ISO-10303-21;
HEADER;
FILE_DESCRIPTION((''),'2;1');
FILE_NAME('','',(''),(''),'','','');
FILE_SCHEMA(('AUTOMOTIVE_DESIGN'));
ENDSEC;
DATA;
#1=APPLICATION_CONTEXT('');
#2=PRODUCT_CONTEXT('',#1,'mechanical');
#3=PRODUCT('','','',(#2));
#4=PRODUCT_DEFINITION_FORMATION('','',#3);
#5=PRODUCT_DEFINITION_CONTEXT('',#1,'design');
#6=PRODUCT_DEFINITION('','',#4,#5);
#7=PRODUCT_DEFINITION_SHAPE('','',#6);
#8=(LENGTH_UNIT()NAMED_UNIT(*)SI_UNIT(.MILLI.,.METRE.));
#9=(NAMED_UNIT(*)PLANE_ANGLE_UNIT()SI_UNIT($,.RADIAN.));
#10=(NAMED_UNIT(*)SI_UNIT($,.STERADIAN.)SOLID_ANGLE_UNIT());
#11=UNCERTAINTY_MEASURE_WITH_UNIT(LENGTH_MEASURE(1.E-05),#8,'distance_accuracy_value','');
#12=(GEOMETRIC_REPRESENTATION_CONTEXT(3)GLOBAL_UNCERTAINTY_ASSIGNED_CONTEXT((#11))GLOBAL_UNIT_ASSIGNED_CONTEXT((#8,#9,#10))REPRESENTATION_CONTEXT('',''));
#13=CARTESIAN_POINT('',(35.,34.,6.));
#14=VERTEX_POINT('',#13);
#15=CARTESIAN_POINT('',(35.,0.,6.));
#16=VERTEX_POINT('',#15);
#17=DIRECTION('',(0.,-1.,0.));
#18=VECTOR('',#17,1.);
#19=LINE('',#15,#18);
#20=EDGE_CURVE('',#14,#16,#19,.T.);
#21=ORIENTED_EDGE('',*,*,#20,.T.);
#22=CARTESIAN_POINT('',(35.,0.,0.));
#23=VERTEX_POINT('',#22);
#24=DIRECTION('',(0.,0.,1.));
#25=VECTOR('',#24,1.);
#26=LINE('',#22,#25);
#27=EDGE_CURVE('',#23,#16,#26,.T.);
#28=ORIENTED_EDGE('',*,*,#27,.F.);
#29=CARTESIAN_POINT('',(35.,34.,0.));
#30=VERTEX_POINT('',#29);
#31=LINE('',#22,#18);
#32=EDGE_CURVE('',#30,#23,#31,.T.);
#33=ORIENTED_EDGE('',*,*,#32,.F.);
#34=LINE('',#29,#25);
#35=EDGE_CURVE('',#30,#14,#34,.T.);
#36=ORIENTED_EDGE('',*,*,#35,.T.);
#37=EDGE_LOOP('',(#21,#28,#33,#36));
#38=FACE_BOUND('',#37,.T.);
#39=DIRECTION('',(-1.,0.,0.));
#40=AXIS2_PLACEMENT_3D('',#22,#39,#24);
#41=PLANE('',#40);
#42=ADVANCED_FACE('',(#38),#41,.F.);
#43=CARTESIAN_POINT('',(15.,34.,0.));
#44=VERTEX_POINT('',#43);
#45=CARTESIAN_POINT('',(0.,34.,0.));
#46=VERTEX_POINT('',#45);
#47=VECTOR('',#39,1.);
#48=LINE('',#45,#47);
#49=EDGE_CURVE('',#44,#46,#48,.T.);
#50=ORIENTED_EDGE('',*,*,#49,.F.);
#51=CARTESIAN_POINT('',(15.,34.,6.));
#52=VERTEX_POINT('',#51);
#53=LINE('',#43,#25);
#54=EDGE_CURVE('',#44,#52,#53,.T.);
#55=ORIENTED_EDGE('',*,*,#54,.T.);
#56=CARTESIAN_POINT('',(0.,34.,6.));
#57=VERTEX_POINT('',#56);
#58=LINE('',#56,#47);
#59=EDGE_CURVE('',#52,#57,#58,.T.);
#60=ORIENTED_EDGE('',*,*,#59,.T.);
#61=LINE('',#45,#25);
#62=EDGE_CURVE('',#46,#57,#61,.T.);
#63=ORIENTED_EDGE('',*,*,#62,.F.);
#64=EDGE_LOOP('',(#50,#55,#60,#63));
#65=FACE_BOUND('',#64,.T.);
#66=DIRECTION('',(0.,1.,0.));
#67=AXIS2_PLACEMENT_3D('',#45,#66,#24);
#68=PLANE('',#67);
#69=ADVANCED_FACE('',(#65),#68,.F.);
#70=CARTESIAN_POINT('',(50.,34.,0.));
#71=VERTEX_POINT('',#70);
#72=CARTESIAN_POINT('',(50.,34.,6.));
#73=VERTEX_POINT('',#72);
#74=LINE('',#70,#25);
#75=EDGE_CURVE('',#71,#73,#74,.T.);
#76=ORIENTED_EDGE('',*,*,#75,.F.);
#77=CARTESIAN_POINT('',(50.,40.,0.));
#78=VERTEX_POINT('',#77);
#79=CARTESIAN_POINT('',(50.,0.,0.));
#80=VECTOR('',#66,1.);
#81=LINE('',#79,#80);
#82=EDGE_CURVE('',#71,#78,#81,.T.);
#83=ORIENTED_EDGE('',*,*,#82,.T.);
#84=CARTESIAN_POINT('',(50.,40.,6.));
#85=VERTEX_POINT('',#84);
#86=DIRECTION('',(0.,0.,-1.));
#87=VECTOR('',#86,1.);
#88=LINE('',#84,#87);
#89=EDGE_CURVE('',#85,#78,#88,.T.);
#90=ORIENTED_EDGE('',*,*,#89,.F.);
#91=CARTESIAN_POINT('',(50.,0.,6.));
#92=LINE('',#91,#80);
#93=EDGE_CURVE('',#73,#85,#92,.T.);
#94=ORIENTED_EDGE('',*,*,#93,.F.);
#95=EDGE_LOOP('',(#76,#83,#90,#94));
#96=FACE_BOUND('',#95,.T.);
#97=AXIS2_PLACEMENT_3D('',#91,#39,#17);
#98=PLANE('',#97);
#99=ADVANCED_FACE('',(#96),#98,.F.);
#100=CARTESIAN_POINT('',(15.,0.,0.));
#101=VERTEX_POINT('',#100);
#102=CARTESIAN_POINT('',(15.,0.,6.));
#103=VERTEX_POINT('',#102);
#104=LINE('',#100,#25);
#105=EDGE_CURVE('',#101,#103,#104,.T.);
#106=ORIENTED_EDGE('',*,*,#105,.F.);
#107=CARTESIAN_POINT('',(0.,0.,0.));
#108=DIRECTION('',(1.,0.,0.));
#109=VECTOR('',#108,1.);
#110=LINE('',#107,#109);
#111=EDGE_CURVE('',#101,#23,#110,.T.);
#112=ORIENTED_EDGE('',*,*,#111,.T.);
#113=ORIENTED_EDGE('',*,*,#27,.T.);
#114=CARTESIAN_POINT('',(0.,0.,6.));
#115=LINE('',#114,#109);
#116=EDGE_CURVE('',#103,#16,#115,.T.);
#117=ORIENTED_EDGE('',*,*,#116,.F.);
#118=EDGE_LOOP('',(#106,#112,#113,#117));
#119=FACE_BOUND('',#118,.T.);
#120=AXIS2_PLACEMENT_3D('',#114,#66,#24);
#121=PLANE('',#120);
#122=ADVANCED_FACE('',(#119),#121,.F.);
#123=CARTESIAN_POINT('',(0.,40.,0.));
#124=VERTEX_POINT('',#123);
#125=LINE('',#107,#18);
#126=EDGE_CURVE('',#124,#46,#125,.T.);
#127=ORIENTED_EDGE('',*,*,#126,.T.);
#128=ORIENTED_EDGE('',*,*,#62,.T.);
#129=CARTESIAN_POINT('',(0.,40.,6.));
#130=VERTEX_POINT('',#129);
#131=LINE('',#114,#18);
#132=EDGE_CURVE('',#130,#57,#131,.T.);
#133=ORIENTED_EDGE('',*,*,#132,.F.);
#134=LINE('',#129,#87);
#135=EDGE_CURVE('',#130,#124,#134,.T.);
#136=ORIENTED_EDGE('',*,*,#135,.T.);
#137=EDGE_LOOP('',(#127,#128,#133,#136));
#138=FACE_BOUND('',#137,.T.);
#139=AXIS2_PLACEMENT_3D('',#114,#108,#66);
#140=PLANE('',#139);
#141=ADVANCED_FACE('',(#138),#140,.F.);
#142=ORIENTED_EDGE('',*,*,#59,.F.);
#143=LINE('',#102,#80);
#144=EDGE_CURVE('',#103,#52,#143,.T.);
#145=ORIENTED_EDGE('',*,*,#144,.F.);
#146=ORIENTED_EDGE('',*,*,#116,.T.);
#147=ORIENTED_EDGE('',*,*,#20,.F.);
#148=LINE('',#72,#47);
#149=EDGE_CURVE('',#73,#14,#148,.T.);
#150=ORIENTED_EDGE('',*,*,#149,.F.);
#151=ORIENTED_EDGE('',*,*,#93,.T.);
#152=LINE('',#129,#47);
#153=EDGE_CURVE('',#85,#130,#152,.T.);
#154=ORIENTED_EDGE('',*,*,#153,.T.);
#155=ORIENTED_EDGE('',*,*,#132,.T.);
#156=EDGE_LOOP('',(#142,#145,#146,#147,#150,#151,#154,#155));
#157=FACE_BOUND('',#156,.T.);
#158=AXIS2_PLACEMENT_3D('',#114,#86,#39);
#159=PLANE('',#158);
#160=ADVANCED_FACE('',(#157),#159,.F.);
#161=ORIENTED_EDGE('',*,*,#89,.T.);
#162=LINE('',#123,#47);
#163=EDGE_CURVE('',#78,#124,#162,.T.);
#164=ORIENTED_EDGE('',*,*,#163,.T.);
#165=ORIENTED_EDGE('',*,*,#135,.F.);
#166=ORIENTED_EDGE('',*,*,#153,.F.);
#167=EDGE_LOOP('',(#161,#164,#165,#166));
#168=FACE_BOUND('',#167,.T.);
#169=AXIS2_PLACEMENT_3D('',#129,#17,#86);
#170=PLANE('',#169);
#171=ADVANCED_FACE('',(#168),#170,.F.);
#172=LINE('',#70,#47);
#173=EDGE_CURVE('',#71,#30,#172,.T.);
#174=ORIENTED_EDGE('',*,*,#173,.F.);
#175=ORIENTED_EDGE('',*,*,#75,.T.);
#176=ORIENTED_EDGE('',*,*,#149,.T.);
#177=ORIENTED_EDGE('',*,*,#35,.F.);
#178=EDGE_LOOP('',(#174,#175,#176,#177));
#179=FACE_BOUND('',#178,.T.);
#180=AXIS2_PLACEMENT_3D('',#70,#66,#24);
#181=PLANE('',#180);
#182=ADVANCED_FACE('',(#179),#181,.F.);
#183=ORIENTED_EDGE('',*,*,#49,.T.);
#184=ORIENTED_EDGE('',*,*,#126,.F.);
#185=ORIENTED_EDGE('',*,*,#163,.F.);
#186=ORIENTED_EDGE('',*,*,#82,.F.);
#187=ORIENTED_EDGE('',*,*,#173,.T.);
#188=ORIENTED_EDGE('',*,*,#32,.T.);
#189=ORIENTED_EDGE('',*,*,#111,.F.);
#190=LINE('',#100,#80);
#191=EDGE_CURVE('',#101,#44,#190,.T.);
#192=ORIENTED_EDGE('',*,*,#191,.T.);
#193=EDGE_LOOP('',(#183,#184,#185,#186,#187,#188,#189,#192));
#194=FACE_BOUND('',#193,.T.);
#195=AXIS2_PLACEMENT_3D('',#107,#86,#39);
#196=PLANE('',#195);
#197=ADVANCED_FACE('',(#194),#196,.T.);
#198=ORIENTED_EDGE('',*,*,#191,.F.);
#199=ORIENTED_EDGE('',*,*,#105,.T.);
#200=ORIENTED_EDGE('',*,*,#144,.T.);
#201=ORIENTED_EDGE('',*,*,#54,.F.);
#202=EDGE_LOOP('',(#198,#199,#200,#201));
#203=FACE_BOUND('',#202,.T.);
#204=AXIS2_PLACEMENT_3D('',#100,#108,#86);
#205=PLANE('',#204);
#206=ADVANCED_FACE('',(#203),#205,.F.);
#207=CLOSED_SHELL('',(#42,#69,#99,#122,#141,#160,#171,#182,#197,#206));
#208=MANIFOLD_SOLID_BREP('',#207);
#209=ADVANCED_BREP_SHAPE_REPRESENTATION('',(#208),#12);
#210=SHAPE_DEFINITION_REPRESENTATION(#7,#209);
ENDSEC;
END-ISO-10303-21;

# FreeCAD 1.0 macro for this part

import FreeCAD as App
import Part
import Sketcher
Q = App.Units.Quantity

doc = App.newDocument("Part")
params = doc.addObject("Spreadsheet::Sheet", "Params")
for row, (alias, value) in enumerate([
    ("sketch1_width", "50 mm"),
    ("sketch1_height", "40 mm"),
    ("pad1_length", "6 mm"),
    ("sketch2_width", "15 mm"),
    ("sketch2_height", "34 mm"),
    ("pocket1_length", "6 mm"),
], start=1):
    params.set(f"A{row}", alias)
    params.set(f"B{row}", "=" + value)
    params.setAlias(f"B{row}", alias)

body = doc.addObject("PartDesign::Body", "Body")

# Sketch on XY plane
sketch1 = body.newObject("Sketcher::SketchObject", "Sketch")
sketch1.AttachmentSupport = (doc.getObject("XY_Plane"), [""])
sketch1.MapMode = "FlatFace"
sketch1.addGeometry(Part.LineSegment(App.Vector(0, 40, 0), App.Vector(0, 0, 0)), False)
sketch1.addGeometry(Part.LineSegment(App.Vector(0, 0, 0), App.Vector(50, 0, 0)), False)
sketch1.addGeometry(Part.LineSegment(App.Vector(50, 0, 0), App.Vector(50, 40, 0)), False)
sketch1.addGeometry(Part.LineSegment(App.Vector(50, 40, 0), App.Vector(0, 40, 0)), False)
sketch1.addConstraint(Sketcher.Constraint("Coincident", 0, 2, 1, 1))
sketch1.addConstraint(Sketcher.Constraint("Coincident", 1, 2, 2, 1))
sketch1.addConstraint(Sketcher.Constraint("Coincident", 2, 2, 3, 1))
sketch1.addConstraint(Sketcher.Constraint("Coincident", 3, 2, 0, 1))
sketch1.addConstraint(Sketcher.Constraint("Vertical", 0))
sketch1.addConstraint(Sketcher.Constraint("Horizontal", 1))
sketch1.addConstraint(Sketcher.Constraint("Vertical", 2))
sketch1.addConstraint(Sketcher.Constraint("Horizontal", 3))
sketch1.addConstraint(Sketcher.Constraint("Coincident", 0, 2, -1, 1))
sketch1.addConstraint(Sketcher.Constraint("DistanceX", 1, 1, 1, 2, Q("50 mm")))
sketch1.addConstraint(Sketcher.Constraint("DistanceY", 0, 2, 0, 1, Q("40 mm")))
sketch1.setExpression("Constraints[9]", "Params.sketch1_width")
sketch1.setExpression("Constraints[10]", "Params.sketch1_height")
pad1 = body.newObject("PartDesign::Pad", "Pad")
pad1.Profile = sketch1
pad1.setExpression("Length", "Params.pad1_length")

# Sketch on XY plane
sketch2 = body.newObject("Sketcher::SketchObject", "Sketch001")
sketch2.AttachmentSupport = (doc.getObject("XY_Plane"), [""])
sketch2.MapMode = "FlatFace"
sketch2.AttachmentOffset = App.Placement(App.Vector(0, 0, 6), App.Rotation())
sketch2.addGeometry(Part.LineSegment(App.Vector(0, 34, 0), App.Vector(0, 0, 0)), False)
sketch2.addGeometry(Part.LineSegment(App.Vector(0, 0, 0), App.Vector(15, 0, 0)), False)
sketch2.addGeometry(Part.LineSegment(App.Vector(15, 0, 0), App.Vector(15, 34, 0)), False)
sketch2.addGeometry(Part.LineSegment(App.Vector(15, 34, 0), App.Vector(0, 34, 0)), False)
sketch2.addGeometry(Part.LineSegment(App.Vector(35, 34, 0), App.Vector(35, 0, 0)), False)
sketch2.addGeometry(Part.LineSegment(App.Vector(35, 0, 0), App.Vector(50, 0, 0)), False)
sketch2.addGeometry(Part.LineSegment(App.Vector(50, 0, 0), App.Vector(50, 34, 0)), False)
sketch2.addGeometry(Part.LineSegment(App.Vector(50, 34, 0), App.Vector(35, 34, 0)), False)
sketch2.addConstraint(Sketcher.Constraint("Coincident", 0, 2, 1, 1))
sketch2.addConstraint(Sketcher.Constraint("Coincident", 1, 2, 2, 1))
sketch2.addConstraint(Sketcher.Constraint("Coincident", 2, 2, 3, 1))
sketch2.addConstraint(Sketcher.Constraint("Coincident", 3, 2, 0, 1))
sketch2.addConstraint(Sketcher.Constraint("Coincident", 4, 2, 5, 1))
sketch2.addConstraint(Sketcher.Constraint("Coincident", 5, 2, 6, 1))
sketch2.addConstraint(Sketcher.Constraint("Coincident", 6, 2, 7, 1))
sketch2.addConstraint(Sketcher.Constraint("Coincident", 7, 2, 4, 1))
sketch2.addConstraint(Sketcher.Constraint("Vertical", 0))
sketch2.addConstraint(Sketcher.Constraint("Horizontal", 1))
sketch2.addConstraint(Sketcher.Constraint("Vertical", 2))
sketch2.addConstraint(Sketcher.Constraint("Horizontal", 3))
sketch2.addConstraint(Sketcher.Constraint("Vertical", 4))
sketch2.addConstraint(Sketcher.Constraint("Horizontal", 5))
sketch2.addConstraint(Sketcher.Constraint("Vertical", 6))
sketch2.addConstraint(Sketcher.Constraint("Horizontal", 7))
sketch2.addConstraint(Sketcher.Constraint("Coincident", 0, 2, -1, 1))
sketch2.addConstraint(Sketcher.Constraint("PointOnObject", 4, 2, -1))
sketch2.addConstraint(Sketcher.Constraint("Horizontal", 3, 2, 6, 2))
sketch2.addConstraint(Sketcher.Constraint("Equal", 3, 5))
sketch2.addConstraint(Sketcher.Constraint("DistanceX", 1, 1, 1, 2, Q("15 mm")))
sketch2.addConstraint(Sketcher.Constraint("DistanceY", 0, 2, 0, 1, Q("34 mm")))
sketch2.addConstraint(Sketcher.Constraint("DistanceX", -1, 1, 4, 2, Q("35 mm")))
sketch2.setExpression("Constraints[20]", "Params.sketch2_width")
sketch2.setExpression("Constraints[21]", "Params.sketch2_height")
pocket1 = body.newObject("PartDesign::Pocket", "Pocket")
pocket1.Profile = sketch2
pocket1.setExpression("Length", "Params.pocket1_length")

doc.recompute()
